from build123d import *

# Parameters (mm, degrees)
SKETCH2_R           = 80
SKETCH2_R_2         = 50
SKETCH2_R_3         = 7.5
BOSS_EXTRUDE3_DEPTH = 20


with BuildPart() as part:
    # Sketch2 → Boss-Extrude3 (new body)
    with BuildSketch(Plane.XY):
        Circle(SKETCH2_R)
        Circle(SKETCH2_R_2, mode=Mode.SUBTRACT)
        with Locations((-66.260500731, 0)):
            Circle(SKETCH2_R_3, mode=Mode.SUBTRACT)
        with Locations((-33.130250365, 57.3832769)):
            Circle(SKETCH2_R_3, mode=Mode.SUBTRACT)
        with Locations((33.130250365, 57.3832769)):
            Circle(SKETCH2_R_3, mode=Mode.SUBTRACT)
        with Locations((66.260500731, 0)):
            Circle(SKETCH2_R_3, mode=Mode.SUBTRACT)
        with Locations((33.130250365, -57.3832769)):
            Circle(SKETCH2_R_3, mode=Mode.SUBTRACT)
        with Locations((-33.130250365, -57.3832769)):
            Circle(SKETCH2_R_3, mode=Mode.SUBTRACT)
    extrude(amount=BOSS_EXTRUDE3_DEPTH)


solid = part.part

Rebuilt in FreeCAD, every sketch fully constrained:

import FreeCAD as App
import Part
import Sketcher
from FreeCAD import Vector
Q = App.Units.Quantity

doc = App.newDocument("Part")
body = doc.addObject("PartDesign::Body", "Body")

# Sketch on XY plane
sketch1 = body.newObject("Sketcher::SketchObject", "Sketch")
sketch1.AttachmentSupport = (doc.getObject("XY_Plane"), [""])
sketch1.MapMode = "FlatFace"
sketch1.addGeometry([
    Part.Circle(Vector(0, 0, 0), Vector(0, 0, 1), 80),  # 0
    Part.Circle(Vector(-33, -57, 0), Vector(0, 0, 1), 8),  # 1
    Part.Circle(Vector(33, -57, 0), Vector(0, 0, 1), 8),  # 2
    Part.Circle(Vector(-66, 0, 0), Vector(0, 0, 1), 8),  # 3
    Part.Circle(Vector(-33, 57, 0), Vector(0, 0, 1), 8),  # 4
    Part.Circle(Vector(0, 0, 0), Vector(0, 0, 1), 50),  # 5
    Part.Circle(Vector(66, 0, 0), Vector(0, 0, 1), 8),  # 6
    Part.Circle(Vector(33, 57, 0), Vector(0, 0, 1), 8),  # 7
], False)
sketch1.addConstraint([
    Sketcher.Constraint("Coincident", 0, 3, -1, 1),
    Sketcher.Constraint("Coincident", 5, 3, -1, 1),
    Sketcher.Constraint("Equal", 1, 2),
    Sketcher.Constraint("Equal", 2, 3),
    Sketcher.Constraint("Equal", 3, 4),
    Sketcher.Constraint("Equal", 4, 6),
    Sketcher.Constraint("Equal", 6, 7),
    Sketcher.Constraint("Symmetric", 2, 3, 4, 3, -1, 1),
    Sketcher.Constraint("Symmetric", 3, 3, 6, 3, -1, 1),
    Sketcher.Constraint("Symmetric", 1, 3, 7, 3, -1, 1),
    Sketcher.Constraint("Symmetric", 1, 3, 2, 3, -2),
    Sketcher.Constraint("PointOnObject", 3, 3, -1),
    Sketcher.Constraint("Diameter", 0, Q("160 mm")),
    Sketcher.Constraint("Diameter", 1, Q("15 mm")),
    Sketcher.Constraint("Diameter", 5, Q("100 mm")),
    Sketcher.Constraint("DistanceX", 3, 3, -1, 1, Q("66.260501 mm")),
    Sketcher.Constraint("DistanceX", 1, 3, 2, 3, Q("66.260501 mm")),
    Sketcher.Constraint("DistanceY", 1, 3, -1, 1, Q("57.383277 mm")),
])
pad1 = body.newObject("PartDesign::Pad", "Pad")
pad1.Profile = sketch1
pad1.Length = 20

doc.recompute()
